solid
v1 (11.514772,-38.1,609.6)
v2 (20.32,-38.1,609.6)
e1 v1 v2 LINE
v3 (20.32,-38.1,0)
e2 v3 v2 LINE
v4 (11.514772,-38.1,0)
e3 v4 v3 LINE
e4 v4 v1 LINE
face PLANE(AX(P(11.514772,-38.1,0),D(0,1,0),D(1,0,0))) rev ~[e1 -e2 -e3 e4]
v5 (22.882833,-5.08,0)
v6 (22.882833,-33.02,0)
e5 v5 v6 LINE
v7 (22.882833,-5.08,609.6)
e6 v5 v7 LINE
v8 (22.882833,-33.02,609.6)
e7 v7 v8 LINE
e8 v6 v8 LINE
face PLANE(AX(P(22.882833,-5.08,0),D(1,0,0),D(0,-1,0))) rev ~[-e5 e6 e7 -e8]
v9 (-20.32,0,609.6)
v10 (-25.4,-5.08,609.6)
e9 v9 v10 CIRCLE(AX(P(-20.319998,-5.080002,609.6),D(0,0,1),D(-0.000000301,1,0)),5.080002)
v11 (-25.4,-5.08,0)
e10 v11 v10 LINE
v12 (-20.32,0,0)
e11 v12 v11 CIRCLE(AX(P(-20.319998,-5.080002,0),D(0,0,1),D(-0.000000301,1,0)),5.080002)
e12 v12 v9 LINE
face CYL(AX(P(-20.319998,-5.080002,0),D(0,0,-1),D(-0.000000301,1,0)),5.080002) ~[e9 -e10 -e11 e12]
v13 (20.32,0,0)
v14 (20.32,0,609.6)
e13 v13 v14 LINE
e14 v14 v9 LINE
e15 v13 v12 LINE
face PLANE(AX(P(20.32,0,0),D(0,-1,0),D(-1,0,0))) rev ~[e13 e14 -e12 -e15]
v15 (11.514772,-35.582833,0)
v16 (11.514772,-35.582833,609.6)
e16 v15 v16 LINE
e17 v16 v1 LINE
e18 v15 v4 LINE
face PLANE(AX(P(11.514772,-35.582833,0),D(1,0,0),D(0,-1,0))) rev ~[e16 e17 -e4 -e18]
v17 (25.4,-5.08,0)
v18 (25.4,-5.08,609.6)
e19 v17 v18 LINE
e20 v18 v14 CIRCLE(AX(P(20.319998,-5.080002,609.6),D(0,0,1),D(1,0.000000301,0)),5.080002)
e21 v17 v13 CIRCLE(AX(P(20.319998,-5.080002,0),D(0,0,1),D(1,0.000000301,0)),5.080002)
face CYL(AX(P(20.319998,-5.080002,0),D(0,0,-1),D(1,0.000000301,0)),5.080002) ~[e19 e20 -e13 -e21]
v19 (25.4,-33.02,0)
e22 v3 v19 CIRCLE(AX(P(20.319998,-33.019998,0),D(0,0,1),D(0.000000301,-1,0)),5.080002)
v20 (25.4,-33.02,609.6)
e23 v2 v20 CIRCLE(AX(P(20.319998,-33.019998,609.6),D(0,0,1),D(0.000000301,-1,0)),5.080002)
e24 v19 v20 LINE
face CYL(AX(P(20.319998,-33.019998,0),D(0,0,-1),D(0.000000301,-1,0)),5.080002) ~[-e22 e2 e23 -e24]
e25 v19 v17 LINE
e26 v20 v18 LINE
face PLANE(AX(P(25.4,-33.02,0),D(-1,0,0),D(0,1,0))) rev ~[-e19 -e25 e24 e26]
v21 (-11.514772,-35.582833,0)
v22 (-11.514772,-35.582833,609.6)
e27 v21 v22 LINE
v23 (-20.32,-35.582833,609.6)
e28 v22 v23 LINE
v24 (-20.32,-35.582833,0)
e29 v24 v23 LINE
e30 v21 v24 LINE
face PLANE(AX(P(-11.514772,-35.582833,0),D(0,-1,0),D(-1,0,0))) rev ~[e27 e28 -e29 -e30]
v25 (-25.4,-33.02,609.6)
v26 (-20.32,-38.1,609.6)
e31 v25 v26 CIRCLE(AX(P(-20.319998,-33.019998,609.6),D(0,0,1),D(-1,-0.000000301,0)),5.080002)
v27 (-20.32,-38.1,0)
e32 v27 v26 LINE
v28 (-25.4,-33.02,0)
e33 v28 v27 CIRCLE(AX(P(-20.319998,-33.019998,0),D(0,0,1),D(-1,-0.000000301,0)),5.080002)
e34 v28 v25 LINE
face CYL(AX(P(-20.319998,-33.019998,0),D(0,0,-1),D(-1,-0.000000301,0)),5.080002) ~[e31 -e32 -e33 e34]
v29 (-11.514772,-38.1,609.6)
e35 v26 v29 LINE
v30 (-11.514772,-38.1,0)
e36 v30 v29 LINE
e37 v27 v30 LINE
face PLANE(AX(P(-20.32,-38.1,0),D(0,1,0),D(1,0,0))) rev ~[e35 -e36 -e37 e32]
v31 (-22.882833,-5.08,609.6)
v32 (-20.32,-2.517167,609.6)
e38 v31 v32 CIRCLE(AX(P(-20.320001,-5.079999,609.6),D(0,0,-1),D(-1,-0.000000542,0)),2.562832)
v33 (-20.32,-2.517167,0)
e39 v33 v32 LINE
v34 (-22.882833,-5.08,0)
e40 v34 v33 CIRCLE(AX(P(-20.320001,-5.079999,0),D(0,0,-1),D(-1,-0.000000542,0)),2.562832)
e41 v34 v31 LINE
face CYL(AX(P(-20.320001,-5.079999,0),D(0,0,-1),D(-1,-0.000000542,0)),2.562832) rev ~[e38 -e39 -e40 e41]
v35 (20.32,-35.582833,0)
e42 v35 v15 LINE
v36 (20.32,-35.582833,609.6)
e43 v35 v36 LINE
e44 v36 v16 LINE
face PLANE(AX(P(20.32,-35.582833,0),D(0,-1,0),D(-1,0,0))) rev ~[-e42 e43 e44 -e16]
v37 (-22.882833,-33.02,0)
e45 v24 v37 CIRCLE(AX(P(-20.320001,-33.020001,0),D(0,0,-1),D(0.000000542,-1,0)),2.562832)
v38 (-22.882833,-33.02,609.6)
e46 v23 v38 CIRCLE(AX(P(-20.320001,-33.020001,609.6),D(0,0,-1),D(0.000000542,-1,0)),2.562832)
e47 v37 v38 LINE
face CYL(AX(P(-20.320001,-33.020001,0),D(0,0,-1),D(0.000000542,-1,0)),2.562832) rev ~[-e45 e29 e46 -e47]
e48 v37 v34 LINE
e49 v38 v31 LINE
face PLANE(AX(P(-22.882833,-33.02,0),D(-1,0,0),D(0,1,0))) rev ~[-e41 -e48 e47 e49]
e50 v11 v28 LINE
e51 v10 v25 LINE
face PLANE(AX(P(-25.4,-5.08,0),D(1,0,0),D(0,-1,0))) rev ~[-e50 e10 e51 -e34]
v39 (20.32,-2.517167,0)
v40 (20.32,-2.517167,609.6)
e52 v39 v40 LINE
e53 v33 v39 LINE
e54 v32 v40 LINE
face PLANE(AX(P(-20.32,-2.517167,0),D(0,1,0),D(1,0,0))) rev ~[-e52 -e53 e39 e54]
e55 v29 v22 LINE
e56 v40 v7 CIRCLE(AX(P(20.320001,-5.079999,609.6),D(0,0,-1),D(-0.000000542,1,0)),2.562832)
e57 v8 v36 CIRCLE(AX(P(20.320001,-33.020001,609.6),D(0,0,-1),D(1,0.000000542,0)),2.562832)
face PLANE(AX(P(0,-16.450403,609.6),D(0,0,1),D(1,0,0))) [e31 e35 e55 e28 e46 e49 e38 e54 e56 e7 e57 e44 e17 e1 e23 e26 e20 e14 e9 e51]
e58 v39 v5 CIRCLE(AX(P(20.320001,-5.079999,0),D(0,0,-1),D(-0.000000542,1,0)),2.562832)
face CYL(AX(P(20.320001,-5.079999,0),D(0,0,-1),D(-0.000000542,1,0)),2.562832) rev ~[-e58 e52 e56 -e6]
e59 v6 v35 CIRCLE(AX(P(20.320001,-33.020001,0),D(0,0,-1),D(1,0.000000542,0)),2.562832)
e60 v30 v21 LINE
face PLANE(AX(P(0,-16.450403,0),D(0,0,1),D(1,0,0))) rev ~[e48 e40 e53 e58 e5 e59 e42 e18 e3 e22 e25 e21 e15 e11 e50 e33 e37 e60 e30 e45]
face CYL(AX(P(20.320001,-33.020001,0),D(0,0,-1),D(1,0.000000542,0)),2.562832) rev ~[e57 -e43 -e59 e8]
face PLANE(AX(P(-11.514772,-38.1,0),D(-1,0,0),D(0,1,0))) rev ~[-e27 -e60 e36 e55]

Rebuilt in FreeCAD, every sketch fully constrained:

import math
import FreeCAD as App
import Part
import Sketcher

V = App.Vector
Q = App.Units.Quantity

doc = App.newDocument("Part")
params = doc.addObject("Spreadsheet::Sheet", "Params")
for row, (alias, value) in enumerate([
    ("sketch1_radius", "0.2000001 in"),
    ("sketch1_width", "1.6 in"),
    ("sketch1_height", "1.1 in"),
    ("pad1_length", "24 in"),
], start=1):
    params.set(f"A{row}", alias)
    params.set(f"B{row}", "=" + value)
    params.setAlias(f"B{row}", alias)

body = doc.addObject("PartDesign::Body", "Body")

# Sketch on XY plane
sketch1 = body.newObject("Sketcher::SketchObject", "Sketch")
sketch1.AttachmentSupport = (doc.getObject("XY_Plane"), [""])
sketch1.MapMode = "FlatFace"
sketch1.addGeometry(Part.LineSegment(V(-20.3, -38.1, 0), V(-11.5, -38.1, 0)), False)
sketch1.addGeometry(Part.LineSegment(V(-11.5, -38.1, 0), V(-11.5, -35.6, 0)), False)
sketch1.addGeometry(Part.LineSegment(V(-11.5, -35.6, 0), V(-20.3, -35.6, 0)), False)
sketch1.addGeometry(Part.ArcOfCircle(Part.Circle(V(-20.3, -33, 0), V(0, 0, 1), 2.6), math.radians(180), math.radians(270)), False)
sketch1.addGeometry(Part.LineSegment(V(-22.9, -33, 0), V(-22.9, -5.1, 0)), False)
sketch1.addGeometry(Part.ArcOfCircle(Part.Circle(V(-20.3, -5.1, 0), V(0, 0, 1), 2.6), math.radians(90), math.radians(180)), False)
sketch1.addGeometry(Part.LineSegment(V(-20.3, -2.5, 0), V(20.3, -2.5, 0)), False)
sketch1.addGeometry(Part.ArcOfCircle(Part.Circle(V(20.3, -5.1, 0), V(0, 0, 1), 2.6), math.radians(0), math.radians(90)), False)
sketch1.addGeometry(Part.LineSegment(V(22.9, -5.1, 0), V(22.9, -33, 0)), False)
sketch1.addGeometry(Part.ArcOfCircle(Part.Circle(V(20.3, -33, 0), V(0, 0, 1), 2.6), math.radians(-90), math.radians(0)), False)
sketch1.addGeometry(Part.LineSegment(V(20.3, -35.6, 0), V(11.5, -35.6, 0)), False)
sketch1.addGeometry(Part.LineSegment(V(11.5, -35.6, 0), V(11.5, -38.1, 0)), False)
sketch1.addGeometry(Part.LineSegment(V(11.5, -38.1, 0), V(20.3, -38.1, 0)), False)
sketch1.addGeometry(Part.ArcOfCircle(Part.Circle(V(20.3, -33, 0), V(0, 0, 1), 5.1), math.radians(-90), math.radians(0)), False)
sketch1.addGeometry(Part.LineSegment(V(25.4, -33, 0), V(25.4, -5.1, 0)), False)
sketch1.addGeometry(Part.ArcOfCircle(Part.Circle(V(20.3, -5.1, 0), V(0, 0, 1), 5.1), math.radians(0), math.radians(90)), False)
sketch1.addGeometry(Part.LineSegment(V(20.3, 0, 0), V(-20.3, 0, 0)), False)
sketch1.addGeometry(Part.ArcOfCircle(Part.Circle(V(-20.3, -5.1, 0), V(0, 0, 1), 5.1), math.radians(90), math.radians(180)), False)
sketch1.addGeometry(Part.LineSegment(V(-25.4, -5.1, 0), V(-25.4, -33, 0)), False)
sketch1.addGeometry(Part.ArcOfCircle(Part.Circle(V(-20.3, -33, 0), V(0, 0, 1), 5.1), math.radians(-180), math.radians(-90)), False)
sketch1.addConstraint(Sketcher.Constraint("Coincident", 0, 2, 1, 1))
sketch1.addConstraint(Sketcher.Constraint("Coincident", 1, 2, 2, 1))
sketch1.addConstraint(Sketcher.Constraint("Tangent", 2, 2, 3, 2))
sketch1.addConstraint(Sketcher.Constraint("Tangent", 3, 1, 4, 1))
sketch1.addConstraint(Sketcher.Constraint("Tangent", 4, 2, 5, 2))
sketch1.addConstraint(Sketcher.Constraint("Tangent", 5, 1, 6, 1))
sketch1.addConstraint(Sketcher.Constraint("Tangent", 6, 2, 7, 2))
sketch1.addConstraint(Sketcher.Constraint("Tangent", 7, 1, 8, 1))
sketch1.addConstraint(Sketcher.Constraint("Tangent", 8, 2, 9, 2))
sketch1.addConstraint(Sketcher.Constraint("Tangent", 9, 1, 10, 1))
sketch1.addConstraint(Sketcher.Constraint("Coincident", 10, 2, 11, 1))
sketch1.addConstraint(Sketcher.Constraint("Coincident", 11, 2, 12, 1))
sketch1.addConstraint(Sketcher.Constraint("Tangent", 12, 2, 13, 1))
sketch1.addConstraint(Sketcher.Constraint("Tangent", 13, 2, 14, 1))
sketch1.addConstraint(Sketcher.Constraint("Tangent", 14, 2, 15, 1))
sketch1.addConstraint(Sketcher.Constraint("Tangent", 15, 2, 16, 1))
sketch1.addConstraint(Sketcher.Constraint("Tangent", 16, 2, 17, 1))
sketch1.addConstraint(Sketcher.Constraint("Tangent", 17, 2, 18, 1))
sketch1.addConstraint(Sketcher.Constraint("Tangent", 18, 2, 19, 1))
sketch1.addConstraint(Sketcher.Constraint("Tangent", 19, 2, 0, 1))
sketch1.addConstraint(Sketcher.Constraint("Horizontal", 0))
sketch1.addConstraint(Sketcher.Constraint("Vertical", 1))
sketch1.addConstraint(Sketcher.Constraint("Horizontal", 2))
sketch1.addConstraint(Sketcher.Constraint("Vertical", 4))
sketch1.addConstraint(Sketcher.Constraint("Horizontal", 6))
sketch1.addConstraint(Sketcher.Constraint("Vertical", 8))
sketch1.addConstraint(Sketcher.Constraint("Horizontal", 10))
sketch1.addConstraint(Sketcher.Constraint("Vertical", 11))
sketch1.addConstraint(Sketcher.Constraint("Horizontal", 12))
sketch1.addConstraint(Sketcher.Constraint("Vertical", 14))
sketch1.addConstraint(Sketcher.Constraint("Horizontal", 16))
sketch1.addConstraint(Sketcher.Constraint("Vertical", 18))
sketch1.addConstraint(Sketcher.Constraint("Coincident", 13, 3, 9, 3))
sketch1.addConstraint(Sketcher.Constraint("Coincident", 15, 3, 7, 3))
sketch1.addConstraint(Sketcher.Constraint("Coincident", 17, 3, 5, 3))
sketch1.addConstraint(Sketcher.Constraint("Coincident", 19, 3, 3, 3))
sketch1.addConstraint(Sketcher.Constraint("Equal", 3, 5))
sketch1.addConstraint(Sketcher.Constraint("Equal", 5, 7))
sketch1.addConstraint(Sketcher.Constraint("Equal", 7, 9))
sketch1.addConstraint(Sketcher.Constraint("Symmetric", 15, 2, 16, 2, -1, 1))
sketch1.addConstraint(Sketcher.Constraint("Symmetric", 1, 2, 10, 2, -2))
sketch1.addConstraint(Sketcher.Constraint("Radius", 13, Q("0.2000001 in")))
sketch1.addConstraint(Sketcher.Constraint("DistanceX", 6, 1, 6, 2, Q("1.6 in")))
sketch1.addConstraint(Sketcher.Constraint("DistanceY", 4, 1, 4, 2, Q("1.1 in")))
sketch1.addConstraint(Sketcher.Constraint("Radius", 3, 2.562832))
sketch1.addConstraint(Sketcher.Constraint("DistanceX", 0, 1, 0, 2, 8.805228))
sketch1.setExpression("Constraints[41]", "Params.sketch1_radius")
sketch1.setExpression("Constraints[42]", "Params.sketch1_width")
sketch1.setExpression("Constraints[43]", "Params.sketch1_height")
pad1 = body.newObject("PartDesign::Pad", "Pad")
pad1.Profile = sketch1
pad1.setExpression("Length", "Params.pad1_length")

doc.recompute()
